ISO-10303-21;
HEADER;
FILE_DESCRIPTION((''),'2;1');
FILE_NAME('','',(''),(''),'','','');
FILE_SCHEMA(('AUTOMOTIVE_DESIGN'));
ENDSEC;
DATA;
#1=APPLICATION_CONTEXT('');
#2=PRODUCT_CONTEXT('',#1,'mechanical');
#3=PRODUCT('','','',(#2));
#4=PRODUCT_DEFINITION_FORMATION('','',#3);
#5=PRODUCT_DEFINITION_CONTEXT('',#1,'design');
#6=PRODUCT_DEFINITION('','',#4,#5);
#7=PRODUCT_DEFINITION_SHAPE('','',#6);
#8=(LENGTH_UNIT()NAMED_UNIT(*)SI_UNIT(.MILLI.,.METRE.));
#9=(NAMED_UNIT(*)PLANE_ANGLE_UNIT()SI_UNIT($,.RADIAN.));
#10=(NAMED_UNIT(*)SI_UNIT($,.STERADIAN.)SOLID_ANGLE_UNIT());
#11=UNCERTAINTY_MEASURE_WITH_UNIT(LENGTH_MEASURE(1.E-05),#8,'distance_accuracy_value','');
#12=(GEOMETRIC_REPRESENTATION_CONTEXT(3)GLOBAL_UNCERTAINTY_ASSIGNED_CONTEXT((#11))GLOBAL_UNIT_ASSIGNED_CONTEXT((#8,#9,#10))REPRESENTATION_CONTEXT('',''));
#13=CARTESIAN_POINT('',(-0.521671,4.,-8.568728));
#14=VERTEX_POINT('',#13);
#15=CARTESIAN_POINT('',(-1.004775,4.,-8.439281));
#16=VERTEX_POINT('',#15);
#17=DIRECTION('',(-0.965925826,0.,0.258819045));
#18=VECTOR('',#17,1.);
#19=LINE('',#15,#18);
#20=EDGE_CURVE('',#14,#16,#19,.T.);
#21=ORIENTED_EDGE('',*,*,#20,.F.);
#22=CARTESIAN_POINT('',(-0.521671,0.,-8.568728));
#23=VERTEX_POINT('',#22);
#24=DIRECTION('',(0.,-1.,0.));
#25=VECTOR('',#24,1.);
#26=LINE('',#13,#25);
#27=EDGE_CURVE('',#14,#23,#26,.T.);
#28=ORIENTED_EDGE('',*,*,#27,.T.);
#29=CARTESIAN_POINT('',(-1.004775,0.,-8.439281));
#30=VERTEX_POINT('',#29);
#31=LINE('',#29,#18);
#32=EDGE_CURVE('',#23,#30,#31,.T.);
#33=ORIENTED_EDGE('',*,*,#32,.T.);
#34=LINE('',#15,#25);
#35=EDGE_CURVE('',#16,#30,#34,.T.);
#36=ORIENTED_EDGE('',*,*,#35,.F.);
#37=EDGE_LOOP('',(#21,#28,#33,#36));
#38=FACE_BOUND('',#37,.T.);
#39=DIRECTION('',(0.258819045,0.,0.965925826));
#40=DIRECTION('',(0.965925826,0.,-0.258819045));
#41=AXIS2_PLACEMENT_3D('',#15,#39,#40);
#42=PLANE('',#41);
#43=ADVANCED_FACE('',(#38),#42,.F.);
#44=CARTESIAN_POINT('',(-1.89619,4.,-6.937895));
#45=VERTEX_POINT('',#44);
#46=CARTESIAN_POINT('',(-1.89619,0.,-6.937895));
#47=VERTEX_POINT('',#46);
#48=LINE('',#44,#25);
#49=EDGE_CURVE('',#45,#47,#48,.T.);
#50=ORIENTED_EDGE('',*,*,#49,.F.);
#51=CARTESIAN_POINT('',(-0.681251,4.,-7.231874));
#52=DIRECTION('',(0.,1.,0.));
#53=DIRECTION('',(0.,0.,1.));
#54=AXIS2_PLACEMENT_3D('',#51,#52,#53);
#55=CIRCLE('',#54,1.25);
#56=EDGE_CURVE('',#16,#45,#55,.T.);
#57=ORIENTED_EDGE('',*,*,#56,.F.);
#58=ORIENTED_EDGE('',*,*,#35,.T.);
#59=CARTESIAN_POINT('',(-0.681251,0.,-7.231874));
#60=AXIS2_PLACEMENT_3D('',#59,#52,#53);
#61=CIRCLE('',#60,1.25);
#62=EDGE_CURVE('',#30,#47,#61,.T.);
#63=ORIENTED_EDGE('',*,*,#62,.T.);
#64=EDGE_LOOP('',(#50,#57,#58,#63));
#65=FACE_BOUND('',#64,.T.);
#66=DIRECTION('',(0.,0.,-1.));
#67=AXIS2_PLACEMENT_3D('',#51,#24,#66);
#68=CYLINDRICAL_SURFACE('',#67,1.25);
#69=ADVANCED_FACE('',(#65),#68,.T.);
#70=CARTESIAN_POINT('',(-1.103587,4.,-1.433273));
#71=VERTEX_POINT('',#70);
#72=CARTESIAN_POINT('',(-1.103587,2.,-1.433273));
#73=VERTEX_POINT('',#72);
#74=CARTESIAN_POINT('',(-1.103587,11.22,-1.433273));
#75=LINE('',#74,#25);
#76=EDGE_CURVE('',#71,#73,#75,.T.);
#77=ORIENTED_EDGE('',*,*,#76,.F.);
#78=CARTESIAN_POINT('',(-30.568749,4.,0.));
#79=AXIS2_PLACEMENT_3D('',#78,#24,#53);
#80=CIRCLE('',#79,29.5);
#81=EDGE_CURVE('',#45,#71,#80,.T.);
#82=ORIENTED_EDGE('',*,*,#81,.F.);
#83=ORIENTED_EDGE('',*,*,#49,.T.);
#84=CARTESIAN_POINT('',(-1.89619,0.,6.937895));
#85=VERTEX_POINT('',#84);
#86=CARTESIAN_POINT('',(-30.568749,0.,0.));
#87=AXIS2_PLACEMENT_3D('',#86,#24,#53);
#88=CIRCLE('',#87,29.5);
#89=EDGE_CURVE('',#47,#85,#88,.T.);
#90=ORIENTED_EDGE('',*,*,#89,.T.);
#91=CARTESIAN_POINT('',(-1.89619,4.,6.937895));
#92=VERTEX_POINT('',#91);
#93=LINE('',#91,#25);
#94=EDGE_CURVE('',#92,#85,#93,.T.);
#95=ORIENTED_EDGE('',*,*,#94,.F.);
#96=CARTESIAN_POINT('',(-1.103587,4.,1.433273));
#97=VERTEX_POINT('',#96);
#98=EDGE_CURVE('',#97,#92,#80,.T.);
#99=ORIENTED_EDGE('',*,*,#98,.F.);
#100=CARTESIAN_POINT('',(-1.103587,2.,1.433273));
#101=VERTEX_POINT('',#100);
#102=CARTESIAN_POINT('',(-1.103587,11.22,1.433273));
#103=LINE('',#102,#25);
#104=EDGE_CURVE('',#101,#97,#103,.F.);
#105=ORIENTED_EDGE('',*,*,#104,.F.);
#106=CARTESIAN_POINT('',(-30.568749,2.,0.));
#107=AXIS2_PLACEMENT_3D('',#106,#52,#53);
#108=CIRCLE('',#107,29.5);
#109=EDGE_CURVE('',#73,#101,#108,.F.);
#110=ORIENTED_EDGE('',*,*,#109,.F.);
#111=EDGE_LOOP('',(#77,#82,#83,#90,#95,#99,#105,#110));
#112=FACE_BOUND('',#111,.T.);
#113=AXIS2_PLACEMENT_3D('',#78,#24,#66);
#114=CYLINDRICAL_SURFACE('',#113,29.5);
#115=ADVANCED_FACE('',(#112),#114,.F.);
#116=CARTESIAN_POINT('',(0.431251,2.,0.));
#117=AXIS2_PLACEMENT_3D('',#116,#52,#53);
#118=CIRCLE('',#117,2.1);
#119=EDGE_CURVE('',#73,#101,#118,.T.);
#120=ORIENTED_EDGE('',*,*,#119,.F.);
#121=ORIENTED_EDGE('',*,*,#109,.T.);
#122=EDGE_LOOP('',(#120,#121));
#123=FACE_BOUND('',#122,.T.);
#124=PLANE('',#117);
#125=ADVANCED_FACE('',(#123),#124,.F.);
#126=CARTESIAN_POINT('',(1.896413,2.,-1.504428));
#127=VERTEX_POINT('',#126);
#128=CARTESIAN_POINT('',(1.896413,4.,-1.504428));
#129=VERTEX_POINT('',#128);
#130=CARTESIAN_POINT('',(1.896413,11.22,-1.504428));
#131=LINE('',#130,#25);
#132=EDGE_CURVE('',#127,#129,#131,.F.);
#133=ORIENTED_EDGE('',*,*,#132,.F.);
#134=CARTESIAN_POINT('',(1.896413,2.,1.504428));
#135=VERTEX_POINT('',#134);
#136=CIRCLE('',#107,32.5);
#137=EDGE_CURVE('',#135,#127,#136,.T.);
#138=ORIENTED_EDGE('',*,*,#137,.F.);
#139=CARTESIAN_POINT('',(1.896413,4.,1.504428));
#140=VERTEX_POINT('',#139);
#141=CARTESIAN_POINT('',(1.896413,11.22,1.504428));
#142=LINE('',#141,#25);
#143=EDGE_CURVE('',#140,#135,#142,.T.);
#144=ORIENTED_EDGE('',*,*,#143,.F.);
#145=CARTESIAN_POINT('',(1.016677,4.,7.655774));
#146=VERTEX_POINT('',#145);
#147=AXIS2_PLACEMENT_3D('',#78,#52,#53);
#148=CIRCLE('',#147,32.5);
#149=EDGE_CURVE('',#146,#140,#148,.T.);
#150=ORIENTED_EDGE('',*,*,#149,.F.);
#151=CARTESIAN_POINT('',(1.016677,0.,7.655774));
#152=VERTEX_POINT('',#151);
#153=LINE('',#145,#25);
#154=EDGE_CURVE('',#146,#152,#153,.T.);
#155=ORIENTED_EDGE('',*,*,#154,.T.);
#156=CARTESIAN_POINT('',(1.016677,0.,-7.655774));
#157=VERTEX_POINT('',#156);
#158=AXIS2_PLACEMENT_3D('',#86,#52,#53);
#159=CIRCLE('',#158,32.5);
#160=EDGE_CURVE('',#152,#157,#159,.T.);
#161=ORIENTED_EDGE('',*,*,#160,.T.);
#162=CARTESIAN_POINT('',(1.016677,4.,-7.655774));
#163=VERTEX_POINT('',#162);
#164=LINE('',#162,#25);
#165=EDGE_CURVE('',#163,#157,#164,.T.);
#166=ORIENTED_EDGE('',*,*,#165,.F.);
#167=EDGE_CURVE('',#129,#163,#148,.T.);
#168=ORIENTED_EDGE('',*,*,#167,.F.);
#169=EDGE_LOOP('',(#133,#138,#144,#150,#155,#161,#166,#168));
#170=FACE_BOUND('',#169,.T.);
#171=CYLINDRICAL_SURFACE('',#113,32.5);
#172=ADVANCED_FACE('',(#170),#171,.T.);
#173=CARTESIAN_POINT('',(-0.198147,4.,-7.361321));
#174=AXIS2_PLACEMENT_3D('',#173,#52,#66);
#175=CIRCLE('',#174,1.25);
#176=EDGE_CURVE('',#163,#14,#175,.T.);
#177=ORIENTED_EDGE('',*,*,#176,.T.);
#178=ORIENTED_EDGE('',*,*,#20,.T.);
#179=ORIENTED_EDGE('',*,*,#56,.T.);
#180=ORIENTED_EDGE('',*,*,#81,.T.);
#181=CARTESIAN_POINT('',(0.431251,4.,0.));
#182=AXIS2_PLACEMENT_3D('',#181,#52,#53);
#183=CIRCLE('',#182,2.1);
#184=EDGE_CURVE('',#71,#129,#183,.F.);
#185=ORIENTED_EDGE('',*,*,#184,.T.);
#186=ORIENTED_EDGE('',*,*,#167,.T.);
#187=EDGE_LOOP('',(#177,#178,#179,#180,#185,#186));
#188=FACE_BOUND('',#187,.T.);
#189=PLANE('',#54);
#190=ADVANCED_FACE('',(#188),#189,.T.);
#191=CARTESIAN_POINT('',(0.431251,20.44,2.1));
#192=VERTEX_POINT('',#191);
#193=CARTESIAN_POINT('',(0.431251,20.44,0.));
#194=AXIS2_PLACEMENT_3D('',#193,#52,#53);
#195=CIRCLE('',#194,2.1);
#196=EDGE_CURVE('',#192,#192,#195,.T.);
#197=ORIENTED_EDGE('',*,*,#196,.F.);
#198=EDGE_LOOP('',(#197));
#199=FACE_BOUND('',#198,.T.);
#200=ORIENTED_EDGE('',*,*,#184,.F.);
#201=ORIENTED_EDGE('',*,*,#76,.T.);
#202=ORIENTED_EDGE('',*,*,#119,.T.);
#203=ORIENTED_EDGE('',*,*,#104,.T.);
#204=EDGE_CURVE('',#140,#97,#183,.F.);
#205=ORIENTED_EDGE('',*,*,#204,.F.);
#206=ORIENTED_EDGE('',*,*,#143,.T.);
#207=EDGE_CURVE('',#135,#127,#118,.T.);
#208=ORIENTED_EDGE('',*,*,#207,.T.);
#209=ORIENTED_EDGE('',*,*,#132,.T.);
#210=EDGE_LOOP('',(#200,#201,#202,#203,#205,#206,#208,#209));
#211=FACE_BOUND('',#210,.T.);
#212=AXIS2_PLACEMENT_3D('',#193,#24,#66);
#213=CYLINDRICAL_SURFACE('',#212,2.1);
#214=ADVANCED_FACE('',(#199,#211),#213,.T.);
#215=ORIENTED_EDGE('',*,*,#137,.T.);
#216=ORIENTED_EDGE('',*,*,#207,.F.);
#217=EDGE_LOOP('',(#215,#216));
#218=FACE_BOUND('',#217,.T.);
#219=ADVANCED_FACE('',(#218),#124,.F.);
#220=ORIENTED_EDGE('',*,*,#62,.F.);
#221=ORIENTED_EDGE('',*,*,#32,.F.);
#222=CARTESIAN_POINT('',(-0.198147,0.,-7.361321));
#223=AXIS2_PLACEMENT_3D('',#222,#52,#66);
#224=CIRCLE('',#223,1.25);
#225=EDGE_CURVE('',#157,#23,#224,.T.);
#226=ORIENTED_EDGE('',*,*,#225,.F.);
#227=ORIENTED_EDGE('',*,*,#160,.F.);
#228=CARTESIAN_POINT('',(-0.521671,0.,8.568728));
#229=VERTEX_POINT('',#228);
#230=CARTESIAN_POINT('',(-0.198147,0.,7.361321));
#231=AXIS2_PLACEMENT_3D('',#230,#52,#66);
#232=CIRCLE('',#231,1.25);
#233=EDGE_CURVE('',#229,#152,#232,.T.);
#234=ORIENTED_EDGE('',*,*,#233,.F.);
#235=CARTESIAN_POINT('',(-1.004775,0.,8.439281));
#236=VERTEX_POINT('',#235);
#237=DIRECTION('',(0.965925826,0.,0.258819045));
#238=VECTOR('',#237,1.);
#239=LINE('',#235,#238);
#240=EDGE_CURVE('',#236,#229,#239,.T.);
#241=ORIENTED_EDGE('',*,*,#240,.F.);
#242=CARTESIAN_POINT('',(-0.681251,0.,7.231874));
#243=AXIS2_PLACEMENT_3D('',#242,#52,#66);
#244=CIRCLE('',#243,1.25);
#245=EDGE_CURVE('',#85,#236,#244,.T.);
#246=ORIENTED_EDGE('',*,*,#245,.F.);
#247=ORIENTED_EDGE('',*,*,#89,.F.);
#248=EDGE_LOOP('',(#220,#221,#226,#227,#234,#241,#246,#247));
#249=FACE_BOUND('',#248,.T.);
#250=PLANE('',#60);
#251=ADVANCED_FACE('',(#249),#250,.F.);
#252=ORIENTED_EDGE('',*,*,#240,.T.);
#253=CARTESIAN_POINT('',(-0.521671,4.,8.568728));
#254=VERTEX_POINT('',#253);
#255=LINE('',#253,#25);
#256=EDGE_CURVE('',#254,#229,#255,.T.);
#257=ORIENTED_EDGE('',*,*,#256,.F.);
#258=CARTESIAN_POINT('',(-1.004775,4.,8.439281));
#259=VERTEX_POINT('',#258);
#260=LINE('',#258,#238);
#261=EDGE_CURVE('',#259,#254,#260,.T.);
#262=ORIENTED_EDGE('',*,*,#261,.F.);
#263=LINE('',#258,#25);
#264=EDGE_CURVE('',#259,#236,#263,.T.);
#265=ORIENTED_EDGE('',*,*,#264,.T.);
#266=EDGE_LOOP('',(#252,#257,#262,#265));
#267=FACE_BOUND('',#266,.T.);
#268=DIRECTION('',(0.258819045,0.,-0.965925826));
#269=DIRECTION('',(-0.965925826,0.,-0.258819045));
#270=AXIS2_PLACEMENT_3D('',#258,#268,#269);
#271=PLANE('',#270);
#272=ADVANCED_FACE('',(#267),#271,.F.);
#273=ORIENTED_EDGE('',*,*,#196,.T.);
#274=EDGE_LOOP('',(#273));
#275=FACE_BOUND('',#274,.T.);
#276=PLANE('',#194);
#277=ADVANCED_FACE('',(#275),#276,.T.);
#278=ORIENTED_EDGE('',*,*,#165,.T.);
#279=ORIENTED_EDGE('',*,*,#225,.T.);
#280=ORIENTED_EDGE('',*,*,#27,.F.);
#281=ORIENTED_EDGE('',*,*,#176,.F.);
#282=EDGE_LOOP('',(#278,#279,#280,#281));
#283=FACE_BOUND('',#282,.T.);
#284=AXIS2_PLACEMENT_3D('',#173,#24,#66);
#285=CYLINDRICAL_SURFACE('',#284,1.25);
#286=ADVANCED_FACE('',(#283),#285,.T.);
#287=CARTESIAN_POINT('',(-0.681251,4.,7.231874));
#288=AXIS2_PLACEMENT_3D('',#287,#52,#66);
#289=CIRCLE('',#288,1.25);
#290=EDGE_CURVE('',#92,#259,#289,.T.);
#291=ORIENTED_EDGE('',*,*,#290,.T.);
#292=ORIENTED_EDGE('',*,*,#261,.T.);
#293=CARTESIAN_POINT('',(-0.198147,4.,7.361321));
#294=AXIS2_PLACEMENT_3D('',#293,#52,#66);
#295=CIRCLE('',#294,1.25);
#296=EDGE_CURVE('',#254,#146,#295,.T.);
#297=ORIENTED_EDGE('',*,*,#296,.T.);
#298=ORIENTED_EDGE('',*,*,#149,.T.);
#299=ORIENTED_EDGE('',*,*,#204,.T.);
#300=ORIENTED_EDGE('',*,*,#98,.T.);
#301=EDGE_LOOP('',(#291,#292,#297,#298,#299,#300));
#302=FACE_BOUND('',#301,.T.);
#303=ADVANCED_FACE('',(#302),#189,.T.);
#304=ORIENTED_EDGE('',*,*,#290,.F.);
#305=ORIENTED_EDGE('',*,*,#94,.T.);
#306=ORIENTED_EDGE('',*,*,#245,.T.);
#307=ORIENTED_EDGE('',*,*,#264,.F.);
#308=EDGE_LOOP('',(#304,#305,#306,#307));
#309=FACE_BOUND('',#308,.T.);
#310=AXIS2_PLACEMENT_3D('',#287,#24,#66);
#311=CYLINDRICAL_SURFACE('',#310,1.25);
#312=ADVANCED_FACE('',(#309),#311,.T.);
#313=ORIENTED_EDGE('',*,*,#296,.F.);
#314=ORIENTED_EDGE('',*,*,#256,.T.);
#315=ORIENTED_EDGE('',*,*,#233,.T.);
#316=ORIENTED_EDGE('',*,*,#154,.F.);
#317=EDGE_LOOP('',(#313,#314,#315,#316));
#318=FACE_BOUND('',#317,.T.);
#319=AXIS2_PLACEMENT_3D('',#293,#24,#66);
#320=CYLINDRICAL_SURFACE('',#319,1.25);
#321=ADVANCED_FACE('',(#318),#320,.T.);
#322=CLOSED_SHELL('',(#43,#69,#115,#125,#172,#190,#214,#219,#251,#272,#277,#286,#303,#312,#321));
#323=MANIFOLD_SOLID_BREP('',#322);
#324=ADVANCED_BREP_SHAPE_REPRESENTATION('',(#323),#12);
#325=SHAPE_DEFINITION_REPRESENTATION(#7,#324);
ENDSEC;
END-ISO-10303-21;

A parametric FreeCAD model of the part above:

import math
import FreeCAD as App
import Part
import Sketcher

V = App.Vector
Q = App.Units.Quantity

doc = App.newDocument("Part")
body = doc.addObject("PartDesign::Body", "Body")

sketch1 = doc.addObject("Sketcher::SketchObject", "Sketch")
body.addObject(sketch1)
sketch1.AttachmentSupport = (doc.XZ_Plane, [""])
sketch1.MapMode = "FlatFace"
sketch1.addGeometry(Part.LineSegment(V(-1, 8.4, 0), V(-0.5, 8.6, 0)), False)
sketch1.addGeometry(Part.ArcOfCircle(Part.Circle(V(-0.2, 7.4, 0), V(0, 0, 1), 1.2), math.radians(14), math.radians(105)), False)
sketch1.addGeometry(Part.ArcOfCircle(Part.Circle(V(-30.6, 0, 0), V(0, 0, 1), 32.5), math.radians(-14), math.radians(14)), False)
sketch1.addGeometry(Part.ArcOfCircle(Part.Circle(V(-0.2, -7.4, 0), V(0, 0, 1), 1.2), math.radians(-105), math.radians(-14)), False)
sketch1.addGeometry(Part.LineSegment(V(-0.5, -8.6, 0), V(-1, -8.4, 0)), False)
sketch1.addGeometry(Part.ArcOfCircle(Part.Circle(V(-0.7, -7.2, 0), V(0, 0, 1), 1.3), math.radians(166), math.radians(255)), False)
sketch1.addGeometry(Part.ArcOfCircle(Part.Circle(V(-30.6, 0, 0), V(0, 0, 1), 29.5), math.radians(-14), math.radians(14)), False)
sketch1.addGeometry(Part.ArcOfCircle(Part.Circle(V(-0.7, 7.2, 0), V(0, 0, 1), 1.3), math.radians(105), math.radians(194)), False)
sketch1.addConstraint(Sketcher.Constraint("Tangent", 0, 2, 1, 2))
sketch1.addConstraint(Sketcher.Constraint("Tangent", 1, 1, 2, 2))
sketch1.addConstraint(Sketcher.Constraint("Tangent", 2, 1, 3, 2))
sketch1.addConstraint(Sketcher.Constraint("Tangent", 3, 1, 4, 1))
sketch1.addConstraint(Sketcher.Constraint("Tangent", 4, 2, 5, 2))
sketch1.addConstraint(Sketcher.Constraint("Tangent", 5, 1, 6, 1))
sketch1.addConstraint(Sketcher.Constraint("Tangent", 6, 2, 7, 2))
sketch1.addConstraint(Sketcher.Constraint("Tangent", 7, 1, 0, 1))
sketch1.addConstraint(Sketcher.Constraint("Coincident", 6, 3, 2, 3))
sketch1.addConstraint(Sketcher.Constraint("Equal", 1, 3))
sketch1.addConstraint(Sketcher.Constraint("Equal", 3, 5))
sketch1.addConstraint(Sketcher.Constraint("Equal", 5, 7))
sketch1.addConstraint(Sketcher.Constraint("Symmetric", 1, 3, 3, 3, -1))
sketch1.addConstraint(Sketcher.Constraint("Vertical", 5, 3, 7, 3))
sketch1.addConstraint(Sketcher.Constraint("Radius", 2, 32.5))
sketch1.addConstraint(Sketcher.Constraint("Radius", 6, 29.5))
sketch1.addConstraint(Sketcher.Constraint("Angle", 0, Q("15 deg")))
sketch1.addConstraint(Sketcher.Constraint("Radius", 1, 1.25))
sketch1.addConstraint(Sketcher.Constraint("DistanceX", 2, 3, 1, 3, 30.370602))
sketch1.addConstraint(Sketcher.Constraint("DistanceX", 2, 3, -1, 1, 30.568749))
pad1 = doc.addObject("PartDesign::Pad", "Pad")
body.addObject(pad1)
pad1.Profile = sketch1
pad1.Length = 4
pad1.Reversed = True

sketch2 = doc.addObject("Sketcher::SketchObject", "Sketch001")
body.addObject(sketch2)
sketch2.AttachmentSupport = (doc.XZ_Plane, [""])
sketch2.MapMode = "FlatFace"
sketch2.AttachmentOffset = App.Placement(V(0, 0, -2), App.Rotation())
sketch2.addGeometry(Part.Circle(V(0.4, 0, 0), V(0, 0, 1), 2.1), False)
sketch2.addConstraint(Sketcher.Constraint("PointOnObject", 0, 3, -1))
sketch2.addConstraint(Sketcher.Constraint("Diameter", 0, 4.2))
sketch2.addConstraint(Sketcher.Constraint("DistanceX", -1, 1, 0, 3, 0.431251))
pad2 = doc.addObject("PartDesign::Pad", "Pad001")
body.addObject(pad2)
pad2.Profile = sketch2
pad2.Length = 18.44
pad2.Reversed = True

doc.recompute()
